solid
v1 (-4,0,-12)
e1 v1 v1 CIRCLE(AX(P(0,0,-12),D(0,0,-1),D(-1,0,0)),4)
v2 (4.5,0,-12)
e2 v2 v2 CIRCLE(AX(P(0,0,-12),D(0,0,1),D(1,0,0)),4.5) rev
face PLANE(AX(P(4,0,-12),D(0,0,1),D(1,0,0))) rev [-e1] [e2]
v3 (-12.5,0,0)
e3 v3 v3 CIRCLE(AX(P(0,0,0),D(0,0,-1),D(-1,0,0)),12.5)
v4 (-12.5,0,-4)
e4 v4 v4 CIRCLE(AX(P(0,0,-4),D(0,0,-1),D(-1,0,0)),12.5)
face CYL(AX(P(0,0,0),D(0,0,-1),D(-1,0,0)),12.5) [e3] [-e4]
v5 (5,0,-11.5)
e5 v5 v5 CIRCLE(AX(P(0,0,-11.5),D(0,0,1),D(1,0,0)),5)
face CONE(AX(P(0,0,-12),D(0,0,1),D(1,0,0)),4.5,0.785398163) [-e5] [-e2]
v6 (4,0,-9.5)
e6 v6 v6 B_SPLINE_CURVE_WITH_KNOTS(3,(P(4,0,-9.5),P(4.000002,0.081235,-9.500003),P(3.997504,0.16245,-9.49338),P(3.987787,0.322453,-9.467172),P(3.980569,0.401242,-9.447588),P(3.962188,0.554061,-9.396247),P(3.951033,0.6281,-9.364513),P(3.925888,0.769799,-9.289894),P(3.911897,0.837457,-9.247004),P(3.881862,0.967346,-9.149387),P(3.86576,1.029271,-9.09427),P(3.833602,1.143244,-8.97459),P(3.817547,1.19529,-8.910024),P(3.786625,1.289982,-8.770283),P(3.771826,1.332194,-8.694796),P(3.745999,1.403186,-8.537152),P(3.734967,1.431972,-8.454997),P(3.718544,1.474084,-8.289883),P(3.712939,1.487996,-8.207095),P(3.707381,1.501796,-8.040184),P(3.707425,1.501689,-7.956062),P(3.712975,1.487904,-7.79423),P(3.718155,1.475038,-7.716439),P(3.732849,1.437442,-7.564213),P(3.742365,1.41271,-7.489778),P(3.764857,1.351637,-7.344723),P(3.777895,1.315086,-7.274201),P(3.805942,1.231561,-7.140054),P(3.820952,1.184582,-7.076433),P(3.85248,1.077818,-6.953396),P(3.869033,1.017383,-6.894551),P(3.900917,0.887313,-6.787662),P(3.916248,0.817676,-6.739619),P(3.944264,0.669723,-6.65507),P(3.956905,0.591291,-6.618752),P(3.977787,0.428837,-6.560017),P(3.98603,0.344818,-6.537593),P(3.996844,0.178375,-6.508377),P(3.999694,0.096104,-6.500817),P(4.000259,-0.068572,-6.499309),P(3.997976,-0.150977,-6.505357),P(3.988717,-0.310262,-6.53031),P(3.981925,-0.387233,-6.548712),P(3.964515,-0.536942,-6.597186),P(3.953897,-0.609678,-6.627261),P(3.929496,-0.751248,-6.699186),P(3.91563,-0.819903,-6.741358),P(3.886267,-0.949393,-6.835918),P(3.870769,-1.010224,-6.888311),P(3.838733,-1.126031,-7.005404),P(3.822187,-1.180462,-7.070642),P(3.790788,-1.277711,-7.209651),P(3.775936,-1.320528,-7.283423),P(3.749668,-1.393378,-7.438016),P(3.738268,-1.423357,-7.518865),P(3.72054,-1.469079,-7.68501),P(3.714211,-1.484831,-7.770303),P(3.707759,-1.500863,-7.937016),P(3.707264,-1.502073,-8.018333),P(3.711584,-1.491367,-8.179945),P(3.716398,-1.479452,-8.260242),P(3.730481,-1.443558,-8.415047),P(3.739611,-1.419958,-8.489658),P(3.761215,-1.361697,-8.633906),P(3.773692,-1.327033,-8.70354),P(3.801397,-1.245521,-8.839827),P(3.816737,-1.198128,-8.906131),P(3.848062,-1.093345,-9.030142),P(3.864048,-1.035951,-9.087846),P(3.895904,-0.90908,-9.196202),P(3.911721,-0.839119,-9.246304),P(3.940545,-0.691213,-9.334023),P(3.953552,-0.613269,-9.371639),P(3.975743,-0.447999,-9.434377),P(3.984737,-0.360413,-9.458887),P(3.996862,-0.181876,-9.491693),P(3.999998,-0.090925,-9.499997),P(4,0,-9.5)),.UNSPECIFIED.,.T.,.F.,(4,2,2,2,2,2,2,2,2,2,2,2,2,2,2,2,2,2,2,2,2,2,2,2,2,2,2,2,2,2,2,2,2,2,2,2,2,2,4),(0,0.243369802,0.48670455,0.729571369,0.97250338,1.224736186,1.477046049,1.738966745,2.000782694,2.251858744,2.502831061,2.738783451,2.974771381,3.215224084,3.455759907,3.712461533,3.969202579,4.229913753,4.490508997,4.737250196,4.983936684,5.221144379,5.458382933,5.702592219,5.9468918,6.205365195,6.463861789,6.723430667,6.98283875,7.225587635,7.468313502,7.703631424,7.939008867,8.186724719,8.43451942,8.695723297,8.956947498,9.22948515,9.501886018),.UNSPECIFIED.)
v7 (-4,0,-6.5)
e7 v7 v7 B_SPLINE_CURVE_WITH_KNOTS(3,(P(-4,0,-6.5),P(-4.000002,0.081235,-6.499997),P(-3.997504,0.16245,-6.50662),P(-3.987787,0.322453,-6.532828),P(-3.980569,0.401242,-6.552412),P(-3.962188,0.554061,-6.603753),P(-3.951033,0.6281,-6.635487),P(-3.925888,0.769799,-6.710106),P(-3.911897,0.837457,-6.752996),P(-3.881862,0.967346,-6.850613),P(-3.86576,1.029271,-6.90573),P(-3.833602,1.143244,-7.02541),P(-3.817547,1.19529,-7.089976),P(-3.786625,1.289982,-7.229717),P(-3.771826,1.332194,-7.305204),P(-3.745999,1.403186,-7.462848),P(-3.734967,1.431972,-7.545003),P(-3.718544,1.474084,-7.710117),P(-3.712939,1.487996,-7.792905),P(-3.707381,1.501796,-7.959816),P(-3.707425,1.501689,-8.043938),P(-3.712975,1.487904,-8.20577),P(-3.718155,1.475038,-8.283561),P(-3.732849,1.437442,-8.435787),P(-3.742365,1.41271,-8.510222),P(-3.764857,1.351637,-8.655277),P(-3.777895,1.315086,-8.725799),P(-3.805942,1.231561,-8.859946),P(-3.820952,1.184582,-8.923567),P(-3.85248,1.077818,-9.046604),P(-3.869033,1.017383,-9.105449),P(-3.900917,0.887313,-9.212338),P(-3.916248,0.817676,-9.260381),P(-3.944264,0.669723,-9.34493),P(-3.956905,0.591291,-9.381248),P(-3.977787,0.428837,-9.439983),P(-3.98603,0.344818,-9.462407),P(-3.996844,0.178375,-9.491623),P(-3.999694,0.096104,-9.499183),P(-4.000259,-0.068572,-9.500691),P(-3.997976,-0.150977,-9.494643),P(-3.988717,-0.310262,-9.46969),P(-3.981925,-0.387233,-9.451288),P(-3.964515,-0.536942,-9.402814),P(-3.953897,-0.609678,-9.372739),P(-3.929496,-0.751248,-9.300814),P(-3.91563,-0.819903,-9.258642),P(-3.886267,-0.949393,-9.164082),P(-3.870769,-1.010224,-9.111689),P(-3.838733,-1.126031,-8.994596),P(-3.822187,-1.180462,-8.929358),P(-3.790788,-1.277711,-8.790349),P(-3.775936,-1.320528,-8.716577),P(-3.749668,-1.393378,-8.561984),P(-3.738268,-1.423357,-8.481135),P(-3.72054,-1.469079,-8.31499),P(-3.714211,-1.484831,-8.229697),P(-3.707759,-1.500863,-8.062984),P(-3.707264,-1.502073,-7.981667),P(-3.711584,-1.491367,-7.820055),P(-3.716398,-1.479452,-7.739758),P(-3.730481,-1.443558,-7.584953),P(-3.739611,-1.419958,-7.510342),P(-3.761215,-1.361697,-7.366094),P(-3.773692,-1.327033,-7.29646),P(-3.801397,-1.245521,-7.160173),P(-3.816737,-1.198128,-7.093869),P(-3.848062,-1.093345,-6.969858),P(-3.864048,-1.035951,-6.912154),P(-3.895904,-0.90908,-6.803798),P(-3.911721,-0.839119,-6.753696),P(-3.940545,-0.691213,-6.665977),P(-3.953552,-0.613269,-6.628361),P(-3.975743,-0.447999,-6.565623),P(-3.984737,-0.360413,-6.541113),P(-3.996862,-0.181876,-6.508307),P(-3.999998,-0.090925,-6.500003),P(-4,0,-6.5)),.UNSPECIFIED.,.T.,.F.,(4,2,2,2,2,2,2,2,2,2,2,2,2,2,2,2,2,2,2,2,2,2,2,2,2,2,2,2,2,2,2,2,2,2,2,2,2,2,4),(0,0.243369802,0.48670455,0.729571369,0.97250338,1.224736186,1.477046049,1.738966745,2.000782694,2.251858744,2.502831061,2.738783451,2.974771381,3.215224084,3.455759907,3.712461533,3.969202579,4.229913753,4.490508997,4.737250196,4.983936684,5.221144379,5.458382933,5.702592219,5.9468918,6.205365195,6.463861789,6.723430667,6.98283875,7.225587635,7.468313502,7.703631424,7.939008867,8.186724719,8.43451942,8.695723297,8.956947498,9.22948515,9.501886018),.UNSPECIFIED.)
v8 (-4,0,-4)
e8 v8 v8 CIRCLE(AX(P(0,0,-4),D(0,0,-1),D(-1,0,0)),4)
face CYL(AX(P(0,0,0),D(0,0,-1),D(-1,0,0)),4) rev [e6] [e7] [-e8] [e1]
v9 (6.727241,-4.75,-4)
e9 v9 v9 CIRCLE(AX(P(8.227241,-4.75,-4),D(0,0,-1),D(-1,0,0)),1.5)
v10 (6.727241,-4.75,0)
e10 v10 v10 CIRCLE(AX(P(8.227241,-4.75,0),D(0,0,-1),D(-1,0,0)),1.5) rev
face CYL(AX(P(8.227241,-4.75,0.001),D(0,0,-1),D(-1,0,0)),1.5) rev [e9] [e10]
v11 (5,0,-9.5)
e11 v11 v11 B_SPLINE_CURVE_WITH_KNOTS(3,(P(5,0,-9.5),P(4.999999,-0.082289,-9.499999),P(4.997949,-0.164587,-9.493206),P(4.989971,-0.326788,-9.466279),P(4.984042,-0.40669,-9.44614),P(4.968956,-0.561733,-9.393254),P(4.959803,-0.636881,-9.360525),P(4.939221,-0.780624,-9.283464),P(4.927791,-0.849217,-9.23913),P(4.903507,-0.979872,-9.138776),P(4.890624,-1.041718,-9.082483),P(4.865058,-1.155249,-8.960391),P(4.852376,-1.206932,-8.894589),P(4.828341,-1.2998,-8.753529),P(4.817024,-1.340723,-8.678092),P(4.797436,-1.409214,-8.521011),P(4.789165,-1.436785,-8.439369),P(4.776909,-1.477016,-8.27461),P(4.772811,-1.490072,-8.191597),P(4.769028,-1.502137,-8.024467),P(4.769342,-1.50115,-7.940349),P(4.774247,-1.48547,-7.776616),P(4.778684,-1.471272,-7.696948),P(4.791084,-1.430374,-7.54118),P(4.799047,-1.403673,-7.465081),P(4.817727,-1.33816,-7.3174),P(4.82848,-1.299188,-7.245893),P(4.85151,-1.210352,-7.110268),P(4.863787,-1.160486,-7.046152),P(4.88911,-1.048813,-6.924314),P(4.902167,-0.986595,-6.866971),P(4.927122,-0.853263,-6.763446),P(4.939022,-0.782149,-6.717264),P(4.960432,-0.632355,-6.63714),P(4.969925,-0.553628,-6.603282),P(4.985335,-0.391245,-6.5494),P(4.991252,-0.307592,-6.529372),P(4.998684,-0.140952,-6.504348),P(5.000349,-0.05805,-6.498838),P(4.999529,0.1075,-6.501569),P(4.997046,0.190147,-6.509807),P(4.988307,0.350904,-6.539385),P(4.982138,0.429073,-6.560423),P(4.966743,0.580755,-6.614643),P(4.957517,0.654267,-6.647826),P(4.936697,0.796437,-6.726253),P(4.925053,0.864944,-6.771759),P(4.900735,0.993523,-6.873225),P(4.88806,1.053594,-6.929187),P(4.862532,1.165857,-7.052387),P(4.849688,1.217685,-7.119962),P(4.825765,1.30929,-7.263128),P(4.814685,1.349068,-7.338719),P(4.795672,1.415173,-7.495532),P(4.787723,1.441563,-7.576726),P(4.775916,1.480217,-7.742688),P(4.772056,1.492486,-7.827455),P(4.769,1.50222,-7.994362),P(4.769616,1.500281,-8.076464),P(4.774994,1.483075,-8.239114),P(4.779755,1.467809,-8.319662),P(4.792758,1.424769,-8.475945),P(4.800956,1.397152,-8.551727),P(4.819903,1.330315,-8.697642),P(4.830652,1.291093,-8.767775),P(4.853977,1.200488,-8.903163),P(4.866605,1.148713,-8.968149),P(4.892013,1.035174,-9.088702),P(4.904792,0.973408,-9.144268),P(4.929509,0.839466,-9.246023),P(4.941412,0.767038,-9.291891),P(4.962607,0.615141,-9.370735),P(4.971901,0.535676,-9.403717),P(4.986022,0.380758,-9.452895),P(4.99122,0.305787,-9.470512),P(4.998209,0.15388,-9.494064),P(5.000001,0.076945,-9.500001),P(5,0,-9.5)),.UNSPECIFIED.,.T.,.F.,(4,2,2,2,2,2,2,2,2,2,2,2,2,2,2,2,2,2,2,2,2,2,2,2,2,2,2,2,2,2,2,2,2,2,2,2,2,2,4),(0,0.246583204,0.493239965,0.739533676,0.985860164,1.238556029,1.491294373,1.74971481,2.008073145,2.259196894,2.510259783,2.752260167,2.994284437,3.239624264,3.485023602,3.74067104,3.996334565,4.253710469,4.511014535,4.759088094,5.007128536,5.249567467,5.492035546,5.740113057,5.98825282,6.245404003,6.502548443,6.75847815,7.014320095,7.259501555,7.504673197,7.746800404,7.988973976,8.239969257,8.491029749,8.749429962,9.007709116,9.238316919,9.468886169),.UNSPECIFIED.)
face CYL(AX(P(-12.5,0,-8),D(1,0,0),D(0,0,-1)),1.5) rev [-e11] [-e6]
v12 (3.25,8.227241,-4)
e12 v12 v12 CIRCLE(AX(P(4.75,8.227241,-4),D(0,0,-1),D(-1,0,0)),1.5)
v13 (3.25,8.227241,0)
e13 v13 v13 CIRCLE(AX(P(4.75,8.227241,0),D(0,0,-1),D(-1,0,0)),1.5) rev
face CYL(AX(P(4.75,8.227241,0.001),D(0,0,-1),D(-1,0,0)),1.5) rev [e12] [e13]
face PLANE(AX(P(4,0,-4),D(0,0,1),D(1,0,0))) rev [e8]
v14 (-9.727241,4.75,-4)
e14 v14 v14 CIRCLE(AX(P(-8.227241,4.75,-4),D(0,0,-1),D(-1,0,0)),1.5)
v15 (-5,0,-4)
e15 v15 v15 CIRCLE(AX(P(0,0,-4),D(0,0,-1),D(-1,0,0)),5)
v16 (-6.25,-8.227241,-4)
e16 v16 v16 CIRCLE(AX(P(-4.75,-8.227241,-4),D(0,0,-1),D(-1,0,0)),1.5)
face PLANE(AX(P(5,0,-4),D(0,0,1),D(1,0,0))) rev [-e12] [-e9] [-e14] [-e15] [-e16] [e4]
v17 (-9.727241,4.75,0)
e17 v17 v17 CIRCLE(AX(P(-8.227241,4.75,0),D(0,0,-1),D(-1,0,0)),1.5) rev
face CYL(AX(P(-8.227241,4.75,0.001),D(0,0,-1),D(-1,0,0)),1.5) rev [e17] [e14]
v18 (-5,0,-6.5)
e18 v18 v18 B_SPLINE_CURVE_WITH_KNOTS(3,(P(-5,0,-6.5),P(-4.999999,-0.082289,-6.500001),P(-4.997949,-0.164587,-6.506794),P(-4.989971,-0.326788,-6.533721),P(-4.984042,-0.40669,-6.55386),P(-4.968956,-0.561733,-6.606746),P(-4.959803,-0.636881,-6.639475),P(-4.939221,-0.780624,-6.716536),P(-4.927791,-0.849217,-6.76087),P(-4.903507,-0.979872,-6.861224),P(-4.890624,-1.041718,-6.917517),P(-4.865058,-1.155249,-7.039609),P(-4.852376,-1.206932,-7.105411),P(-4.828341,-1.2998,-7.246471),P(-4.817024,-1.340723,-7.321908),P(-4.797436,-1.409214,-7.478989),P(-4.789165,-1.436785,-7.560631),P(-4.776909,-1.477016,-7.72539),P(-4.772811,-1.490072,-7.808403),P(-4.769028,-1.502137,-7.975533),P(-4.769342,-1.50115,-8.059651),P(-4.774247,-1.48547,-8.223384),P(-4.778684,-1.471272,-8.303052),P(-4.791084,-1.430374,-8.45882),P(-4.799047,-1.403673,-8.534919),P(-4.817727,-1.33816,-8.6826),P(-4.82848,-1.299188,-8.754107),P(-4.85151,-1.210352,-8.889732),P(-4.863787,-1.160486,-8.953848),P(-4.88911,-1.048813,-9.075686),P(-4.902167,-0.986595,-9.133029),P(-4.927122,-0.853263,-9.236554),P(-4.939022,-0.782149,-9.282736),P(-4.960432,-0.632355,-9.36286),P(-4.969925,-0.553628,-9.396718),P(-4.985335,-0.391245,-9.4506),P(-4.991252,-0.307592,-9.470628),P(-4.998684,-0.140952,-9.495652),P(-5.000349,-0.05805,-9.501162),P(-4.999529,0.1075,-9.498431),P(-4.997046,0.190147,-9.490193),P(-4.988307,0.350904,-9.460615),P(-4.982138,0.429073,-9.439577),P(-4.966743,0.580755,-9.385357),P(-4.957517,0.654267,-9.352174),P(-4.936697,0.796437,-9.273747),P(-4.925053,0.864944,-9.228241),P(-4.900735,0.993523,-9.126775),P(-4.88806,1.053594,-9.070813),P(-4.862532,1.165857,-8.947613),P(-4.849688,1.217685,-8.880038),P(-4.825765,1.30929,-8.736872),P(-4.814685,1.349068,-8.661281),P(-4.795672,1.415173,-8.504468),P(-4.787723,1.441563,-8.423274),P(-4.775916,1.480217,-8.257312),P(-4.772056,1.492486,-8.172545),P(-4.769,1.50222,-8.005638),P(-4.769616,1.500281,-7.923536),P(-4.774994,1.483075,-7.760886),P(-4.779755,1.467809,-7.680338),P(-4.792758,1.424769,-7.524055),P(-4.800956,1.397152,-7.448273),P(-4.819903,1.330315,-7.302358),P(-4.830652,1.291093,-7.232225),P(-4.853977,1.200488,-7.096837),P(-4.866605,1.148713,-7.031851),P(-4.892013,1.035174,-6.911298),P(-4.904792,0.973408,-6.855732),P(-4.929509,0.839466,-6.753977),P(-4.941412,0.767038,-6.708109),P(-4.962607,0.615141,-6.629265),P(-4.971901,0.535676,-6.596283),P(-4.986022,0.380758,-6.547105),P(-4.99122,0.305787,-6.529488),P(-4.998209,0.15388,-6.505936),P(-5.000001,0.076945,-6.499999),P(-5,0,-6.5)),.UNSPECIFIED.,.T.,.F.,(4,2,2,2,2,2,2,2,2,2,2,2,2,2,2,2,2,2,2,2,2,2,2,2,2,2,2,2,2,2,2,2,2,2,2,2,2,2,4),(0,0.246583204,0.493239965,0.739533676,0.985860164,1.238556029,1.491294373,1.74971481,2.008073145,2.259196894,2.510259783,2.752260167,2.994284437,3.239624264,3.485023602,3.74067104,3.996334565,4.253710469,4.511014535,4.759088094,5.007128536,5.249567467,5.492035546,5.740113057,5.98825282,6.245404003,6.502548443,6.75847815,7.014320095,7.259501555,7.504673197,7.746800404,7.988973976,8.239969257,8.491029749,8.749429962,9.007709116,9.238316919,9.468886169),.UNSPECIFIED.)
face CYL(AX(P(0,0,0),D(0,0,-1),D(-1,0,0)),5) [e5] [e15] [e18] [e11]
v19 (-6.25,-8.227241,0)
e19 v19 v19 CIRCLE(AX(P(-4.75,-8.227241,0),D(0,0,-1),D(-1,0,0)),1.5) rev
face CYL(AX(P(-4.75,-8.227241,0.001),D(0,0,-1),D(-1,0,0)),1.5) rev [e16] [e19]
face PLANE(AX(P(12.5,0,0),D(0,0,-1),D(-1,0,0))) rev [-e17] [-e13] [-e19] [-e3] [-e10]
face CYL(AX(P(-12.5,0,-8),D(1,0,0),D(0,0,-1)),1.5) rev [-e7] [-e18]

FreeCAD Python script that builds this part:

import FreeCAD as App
import Part
import Sketcher
from FreeCAD import Vector


def edges_at(feature, points):
    """Names of the edges that pass closest to the given points."""
    edges = feature.Shape.Edges
    near = lambda p: min(range(len(edges)), key=lambda i: edges[i].distToShape(Part.Vertex(*p))[0])
    return sorted({f"Edge{near(p) + 1}" for p in points})

doc = App.newDocument("Part")
params = doc.addObject("Spreadsheet::Sheet", "Params")
for row, (alias, value) in enumerate([
    ("sketch1_width", "1 mm"),
    ("sketch1_width2", "4 mm"),
    ("sketch1_height", "8 mm"),
    ("sketch1_width3", "12.5 mm"),
    ("revolution_angle", "360 deg"),
    ("sketch2_diameter", "3 mm"),
    ("sketch3_diameter", "3 mm"),
    ("sketch4_diameter", "3 mm"),
    ("sketch5_diameter", "3 mm"),
    ("sketch6_diameter", "3 mm"),
    ("chamfer_size", "0.5 mm"),
], start=1):
    params.set(f"A{row}", alias)
    params.set(f"B{row}", "=" + value)
    params.setAlias(f"B{row}", alias)

body = doc.addObject("PartDesign::Body", "Body")

# Sketch on XZ plane
sketch1 = body.newObject("Sketcher::SketchObject", "Sketch")
sketch1.AttachmentSupport = (doc.getObject("XZ_Plane"), [""])
sketch1.MapMode = "FlatFace"
sketch1.addGeometry([
    Part.LineSegment(Vector(0, -4, 0), Vector(0, 0, 0)),  # 0
    Part.LineSegment(Vector(0, 0, 0), Vector(12.5, 0, 0)),  # 1
    Part.LineSegment(Vector(12.5, 0, 0), Vector(12.5, -4, 0)),  # 2
    Part.LineSegment(Vector(12.5, -4, 0), Vector(5, -4, 0)),  # 3
    Part.LineSegment(Vector(5, -4, 0), Vector(5, -12, 0)),  # 4
    Part.LineSegment(Vector(5, -12, 0), Vector(4, -12, 0)),  # 5
    Part.LineSegment(Vector(4, -12, 0), Vector(4, -4, 0)),  # 6
    Part.LineSegment(Vector(4, -4, 0), Vector(0, -4, 0)),  # 7
], False)
sketch1.addConstraint([
    Sketcher.Constraint("Coincident", 0, 2, 1, 1),
    Sketcher.Constraint("Coincident", 1, 2, 2, 1),
    Sketcher.Constraint("Coincident", 2, 2, 3, 1),
    Sketcher.Constraint("Coincident", 3, 2, 4, 1),
    Sketcher.Constraint("Coincident", 4, 2, 5, 1),
    Sketcher.Constraint("Coincident", 5, 2, 6, 1),
    Sketcher.Constraint("Coincident", 6, 2, 7, 1),
    Sketcher.Constraint("Coincident", 7, 2, 0, 1),
    Sketcher.Constraint("Vertical", 0),
    Sketcher.Constraint("Horizontal", 1),
    Sketcher.Constraint("Vertical", 2),
    Sketcher.Constraint("Horizontal", 3),
    Sketcher.Constraint("Vertical", 4),
    Sketcher.Constraint("Horizontal", 5),
    Sketcher.Constraint("Vertical", 6),
    Sketcher.Constraint("Horizontal", 7),
    Sketcher.Constraint("Coincident", 0, 2, -1, 1),
    Sketcher.Constraint("Horizontal", 3, 2, 6, 2),
    Sketcher.Constraint("Equal", 7, 0),
    Sketcher.Constraint("DistanceX", 5, 2, 5, 1, 1.0),
    Sketcher.Constraint("DistanceX", 7, 2, 7, 1, 4.0),
    Sketcher.Constraint("DistanceY", 4, 2, 4, 1, 8.0),
    Sketcher.Constraint("DistanceX", 1, 1, 1, 2, 12.5),
])
sketch1.setExpression("Constraints[19]", "Params.sketch1_width")
sketch1.setExpression("Constraints[20]", "Params.sketch1_width2")
sketch1.setExpression("Constraints[21]", "Params.sketch1_height")
sketch1.setExpression("Constraints[22]", "Params.sketch1_width3")
revolution = body.newObject("PartDesign::Revolution", "Revolution")
revolution.Profile = sketch1
revolution.ReferenceAxis = (sketch1, ["V_Axis"])
revolution.setExpression("Angle", "Params.revolution_angle")

# Sketch on XY plane
sketch2 = body.newObject("Sketcher::SketchObject", "Sketch001")
sketch2.AttachmentSupport = (doc.getObject("XY_Plane"), [""])
sketch2.MapMode = "FlatFace"
sketch2.AttachmentOffset = App.Placement(Vector(0, 0, -4), App.Rotation())
sketch2.addGeometry(Part.Circle(Vector(4.8, 8.2, 0), Vector(0, 0, 1), 1.5), False)
sketch2.addConstraint([
    Sketcher.Constraint("Diameter", 0, 3.0),
    Sketcher.Constraint("DistanceX", -1, 1, 0, 3, 4.75),
    Sketcher.Constraint("DistanceY", -1, 1, 0, 3, 8.227241),
])
sketch2.setExpression("Constraints[0]", "Params.sketch2_diameter")
pocket1 = body.newObject("PartDesign::Pocket", "Pocket")
pocket1.Profile = sketch2
pocket1.Type = "UpToFirst"
pocket1.Reversed = True

# Sketch on XY plane
sketch3 = body.newObject("Sketcher::SketchObject", "Sketch002")
sketch3.AttachmentSupport = (doc.getObject("XY_Plane"), [""])
sketch3.MapMode = "FlatFace"
sketch3.AttachmentOffset = App.Placement(Vector(0, 0, -4), App.Rotation())
sketch3.addGeometry(Part.Circle(Vector(8.2, -4.8, 0), Vector(0, 0, 1), 1.5), False)
sketch3.addConstraint([
    Sketcher.Constraint("Diameter", 0, 3.0),
    Sketcher.Constraint("DistanceY", 0, 3, -1, 1, 4.75),
    Sketcher.Constraint("DistanceX", -1, 1, 0, 3, 8.227241),
])
sketch3.setExpression("Constraints[0]", "Params.sketch3_diameter")
pocket2 = body.newObject("PartDesign::Pocket", "Pocket001")
pocket2.Profile = sketch3
pocket2.Type = "UpToFirst"
pocket2.Reversed = True

# Sketch on XY plane
sketch4 = body.newObject("Sketcher::SketchObject", "Sketch003")
sketch4.AttachmentSupport = (doc.getObject("XY_Plane"), [""])
sketch4.MapMode = "FlatFace"
sketch4.AttachmentOffset = App.Placement(Vector(0, 0, -4), App.Rotation())
sketch4.addGeometry(Part.Circle(Vector(-4.8, -8.2, 0), Vector(0, 0, 1), 1.5), False)
sketch4.addConstraint([
    Sketcher.Constraint("Diameter", 0, 3.0),
    Sketcher.Constraint("DistanceX", 0, 3, -1, 1, 4.75),
    Sketcher.Constraint("DistanceY", 0, 3, -1, 1, 8.227241),
])
sketch4.setExpression("Constraints[0]", "Params.sketch4_diameter")
pocket3 = body.newObject("PartDesign::Pocket", "Pocket002")
pocket3.Profile = sketch4
pocket3.Type = "UpToFirst"
pocket3.Reversed = True

# Sketch on XY plane
sketch5 = body.newObject("Sketcher::SketchObject", "Sketch004")
sketch5.AttachmentSupport = (doc.getObject("XY_Plane"), [""])
sketch5.MapMode = "FlatFace"
sketch5.AttachmentOffset = App.Placement(Vector(0, 0, -4), App.Rotation())
sketch5.addGeometry(Part.Circle(Vector(-8.2, 4.8, 0), Vector(0, 0, 1), 1.5), False)
sketch5.addConstraint([
    Sketcher.Constraint("Diameter", 0, 3.0),
    Sketcher.Constraint("DistanceY", -1, 1, 0, 3, 4.75),
    Sketcher.Constraint("DistanceX", 0, 3, -1, 1, 8.227241),
])
sketch5.setExpression("Constraints[0]", "Params.sketch5_diameter")
pocket4 = body.newObject("PartDesign::Pocket", "Pocket003")
pocket4.Profile = sketch5
pocket4.Type = "UpToFirst"
pocket4.Reversed = True

# Sketch on YZ plane
sketch6 = body.newObject("Sketcher::SketchObject", "Sketch005")
sketch6.AttachmentSupport = (doc.getObject("YZ_Plane"), [""])
sketch6.MapMode = "FlatFace"
sketch6.addGeometry(Part.Circle(Vector(0, -8, 0), Vector(0, 0, 1), 1.5), False)
sketch6.addConstraint([
    Sketcher.Constraint("PointOnObject", 0, 3, -2),
    Sketcher.Constraint("Diameter", 0, 3.0),
    Sketcher.Constraint("DistanceY", 0, 3, -1, 1, 8.0),
])
sketch6.setExpression("Constraints[1]", "Params.sketch6_diameter")
pocket5 = body.newObject("PartDesign::Pocket", "Pocket004")
pocket5.Profile = sketch6
pocket5.Type = "ThroughAll"
pocket5.Midplane = True
doc.recompute()

chamfer = body.newObject("PartDesign::Chamfer", "Chamfer")
chamfer.Base = (pocket5, edges_at(pocket5, [(-5, 0, -12)]))
chamfer.setExpression("Size", "Params.chamfer_size")

doc.recompute()
